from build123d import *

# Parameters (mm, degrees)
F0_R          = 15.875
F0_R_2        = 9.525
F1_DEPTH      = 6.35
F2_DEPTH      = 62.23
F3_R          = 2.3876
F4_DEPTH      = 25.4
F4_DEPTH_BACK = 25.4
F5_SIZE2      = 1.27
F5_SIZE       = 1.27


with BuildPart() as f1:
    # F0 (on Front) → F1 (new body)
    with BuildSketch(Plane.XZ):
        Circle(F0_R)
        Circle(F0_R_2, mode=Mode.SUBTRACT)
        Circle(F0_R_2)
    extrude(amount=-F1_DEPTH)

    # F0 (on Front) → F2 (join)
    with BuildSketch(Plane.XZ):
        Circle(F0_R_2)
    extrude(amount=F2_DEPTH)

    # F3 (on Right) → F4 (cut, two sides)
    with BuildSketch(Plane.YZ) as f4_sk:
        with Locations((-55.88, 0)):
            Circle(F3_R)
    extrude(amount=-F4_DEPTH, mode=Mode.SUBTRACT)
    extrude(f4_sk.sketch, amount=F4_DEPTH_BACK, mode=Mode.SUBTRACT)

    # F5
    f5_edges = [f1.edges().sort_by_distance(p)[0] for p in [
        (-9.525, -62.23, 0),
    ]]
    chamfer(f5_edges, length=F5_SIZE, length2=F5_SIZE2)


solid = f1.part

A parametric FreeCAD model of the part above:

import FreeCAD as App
import Part
import Sketcher

V = App.Vector
Q = App.Units.Quantity


def edges_at(feature, points):
    """Names of the edges that pass closest to the given points."""
    edges = feature.Shape.Edges
    near = lambda p: min(range(len(edges)), key=lambda i: edges[i].distToShape(Part.Vertex(*p))[0])
    return sorted({f"Edge{near(p) + 1}" for p in points})

doc = App.newDocument("Part")
body = doc.addObject("PartDesign::Body", "Body")

# Sketch on XZ plane
sketch1 = body.newObject("Sketcher::SketchObject", "Sketch")
sketch1.AttachmentSupport = (doc.getObject("XZ_Plane"), [""])
sketch1.MapMode = "FlatFace"
sketch1.addGeometry(Part.Circle(V(0, 0, 0), V(0, 0, 1), 15.875), False)
sketch1.addConstraint([
    Sketcher.Constraint("Coincident", 0, 3, -1, 1),
    Sketcher.Constraint("Diameter", 0, Q("1.25 in")),
])
pad1 = body.newObject("PartDesign::Pad", "Pad")
pad1.Profile = sketch1
pad1.Length = Q("0.25 in")
pad1.Reversed = True

# Sketch on XZ plane
sketch2 = body.newObject("Sketcher::SketchObject", "Sketch001")
sketch2.AttachmentSupport = (doc.getObject("XZ_Plane"), [""])
sketch2.MapMode = "FlatFace"
sketch2.addGeometry(Part.Circle(V(0, 0, 0), V(0, 0, 1), 9.525), False)
sketch2.addConstraint([
    Sketcher.Constraint("Coincident", 0, 3, -1, 1),
    Sketcher.Constraint("Diameter", 0, Q("0.75 in")),
])
pad2 = body.newObject("PartDesign::Pad", "Pad001")
pad2.Profile = sketch2
pad2.Length = Q("2.45 in")

# Sketch on YZ plane
sketch3 = body.newObject("Sketcher::SketchObject", "Sketch002")
sketch3.AttachmentSupport = (doc.getObject("YZ_Plane"), [""])
sketch3.MapMode = "FlatFace"
sketch3.addGeometry(Part.Circle(V(-55.88, 0, 0), V(0, 0, 1), 2.3876), False)
sketch3.addConstraint([
    Sketcher.Constraint("PointOnObject", 0, 3, -1),
    Sketcher.Constraint("Diameter", 0, Q("0.188 in")),
    Sketcher.Constraint("DistanceX", 0, 3, -1, 1, Q("2.2 in")),
])
pocket1 = body.newObject("PartDesign::Pocket", "Pocket")
pocket1.Profile = sketch3
pocket1.Type = "ThroughAll"
pocket1.Midplane = True
doc.recompute()

chamfer = body.newObject("PartDesign::Chamfer", "Chamfer")
chamfer.Base = (pocket1, edges_at(pocket1, [(-9.525, -62.23, 0)]))
chamfer.ChamferType = "Two distances"
chamfer.Size = Q("0.05 in")
chamfer.Size2 = Q("0.05 in")

doc.recompute()
